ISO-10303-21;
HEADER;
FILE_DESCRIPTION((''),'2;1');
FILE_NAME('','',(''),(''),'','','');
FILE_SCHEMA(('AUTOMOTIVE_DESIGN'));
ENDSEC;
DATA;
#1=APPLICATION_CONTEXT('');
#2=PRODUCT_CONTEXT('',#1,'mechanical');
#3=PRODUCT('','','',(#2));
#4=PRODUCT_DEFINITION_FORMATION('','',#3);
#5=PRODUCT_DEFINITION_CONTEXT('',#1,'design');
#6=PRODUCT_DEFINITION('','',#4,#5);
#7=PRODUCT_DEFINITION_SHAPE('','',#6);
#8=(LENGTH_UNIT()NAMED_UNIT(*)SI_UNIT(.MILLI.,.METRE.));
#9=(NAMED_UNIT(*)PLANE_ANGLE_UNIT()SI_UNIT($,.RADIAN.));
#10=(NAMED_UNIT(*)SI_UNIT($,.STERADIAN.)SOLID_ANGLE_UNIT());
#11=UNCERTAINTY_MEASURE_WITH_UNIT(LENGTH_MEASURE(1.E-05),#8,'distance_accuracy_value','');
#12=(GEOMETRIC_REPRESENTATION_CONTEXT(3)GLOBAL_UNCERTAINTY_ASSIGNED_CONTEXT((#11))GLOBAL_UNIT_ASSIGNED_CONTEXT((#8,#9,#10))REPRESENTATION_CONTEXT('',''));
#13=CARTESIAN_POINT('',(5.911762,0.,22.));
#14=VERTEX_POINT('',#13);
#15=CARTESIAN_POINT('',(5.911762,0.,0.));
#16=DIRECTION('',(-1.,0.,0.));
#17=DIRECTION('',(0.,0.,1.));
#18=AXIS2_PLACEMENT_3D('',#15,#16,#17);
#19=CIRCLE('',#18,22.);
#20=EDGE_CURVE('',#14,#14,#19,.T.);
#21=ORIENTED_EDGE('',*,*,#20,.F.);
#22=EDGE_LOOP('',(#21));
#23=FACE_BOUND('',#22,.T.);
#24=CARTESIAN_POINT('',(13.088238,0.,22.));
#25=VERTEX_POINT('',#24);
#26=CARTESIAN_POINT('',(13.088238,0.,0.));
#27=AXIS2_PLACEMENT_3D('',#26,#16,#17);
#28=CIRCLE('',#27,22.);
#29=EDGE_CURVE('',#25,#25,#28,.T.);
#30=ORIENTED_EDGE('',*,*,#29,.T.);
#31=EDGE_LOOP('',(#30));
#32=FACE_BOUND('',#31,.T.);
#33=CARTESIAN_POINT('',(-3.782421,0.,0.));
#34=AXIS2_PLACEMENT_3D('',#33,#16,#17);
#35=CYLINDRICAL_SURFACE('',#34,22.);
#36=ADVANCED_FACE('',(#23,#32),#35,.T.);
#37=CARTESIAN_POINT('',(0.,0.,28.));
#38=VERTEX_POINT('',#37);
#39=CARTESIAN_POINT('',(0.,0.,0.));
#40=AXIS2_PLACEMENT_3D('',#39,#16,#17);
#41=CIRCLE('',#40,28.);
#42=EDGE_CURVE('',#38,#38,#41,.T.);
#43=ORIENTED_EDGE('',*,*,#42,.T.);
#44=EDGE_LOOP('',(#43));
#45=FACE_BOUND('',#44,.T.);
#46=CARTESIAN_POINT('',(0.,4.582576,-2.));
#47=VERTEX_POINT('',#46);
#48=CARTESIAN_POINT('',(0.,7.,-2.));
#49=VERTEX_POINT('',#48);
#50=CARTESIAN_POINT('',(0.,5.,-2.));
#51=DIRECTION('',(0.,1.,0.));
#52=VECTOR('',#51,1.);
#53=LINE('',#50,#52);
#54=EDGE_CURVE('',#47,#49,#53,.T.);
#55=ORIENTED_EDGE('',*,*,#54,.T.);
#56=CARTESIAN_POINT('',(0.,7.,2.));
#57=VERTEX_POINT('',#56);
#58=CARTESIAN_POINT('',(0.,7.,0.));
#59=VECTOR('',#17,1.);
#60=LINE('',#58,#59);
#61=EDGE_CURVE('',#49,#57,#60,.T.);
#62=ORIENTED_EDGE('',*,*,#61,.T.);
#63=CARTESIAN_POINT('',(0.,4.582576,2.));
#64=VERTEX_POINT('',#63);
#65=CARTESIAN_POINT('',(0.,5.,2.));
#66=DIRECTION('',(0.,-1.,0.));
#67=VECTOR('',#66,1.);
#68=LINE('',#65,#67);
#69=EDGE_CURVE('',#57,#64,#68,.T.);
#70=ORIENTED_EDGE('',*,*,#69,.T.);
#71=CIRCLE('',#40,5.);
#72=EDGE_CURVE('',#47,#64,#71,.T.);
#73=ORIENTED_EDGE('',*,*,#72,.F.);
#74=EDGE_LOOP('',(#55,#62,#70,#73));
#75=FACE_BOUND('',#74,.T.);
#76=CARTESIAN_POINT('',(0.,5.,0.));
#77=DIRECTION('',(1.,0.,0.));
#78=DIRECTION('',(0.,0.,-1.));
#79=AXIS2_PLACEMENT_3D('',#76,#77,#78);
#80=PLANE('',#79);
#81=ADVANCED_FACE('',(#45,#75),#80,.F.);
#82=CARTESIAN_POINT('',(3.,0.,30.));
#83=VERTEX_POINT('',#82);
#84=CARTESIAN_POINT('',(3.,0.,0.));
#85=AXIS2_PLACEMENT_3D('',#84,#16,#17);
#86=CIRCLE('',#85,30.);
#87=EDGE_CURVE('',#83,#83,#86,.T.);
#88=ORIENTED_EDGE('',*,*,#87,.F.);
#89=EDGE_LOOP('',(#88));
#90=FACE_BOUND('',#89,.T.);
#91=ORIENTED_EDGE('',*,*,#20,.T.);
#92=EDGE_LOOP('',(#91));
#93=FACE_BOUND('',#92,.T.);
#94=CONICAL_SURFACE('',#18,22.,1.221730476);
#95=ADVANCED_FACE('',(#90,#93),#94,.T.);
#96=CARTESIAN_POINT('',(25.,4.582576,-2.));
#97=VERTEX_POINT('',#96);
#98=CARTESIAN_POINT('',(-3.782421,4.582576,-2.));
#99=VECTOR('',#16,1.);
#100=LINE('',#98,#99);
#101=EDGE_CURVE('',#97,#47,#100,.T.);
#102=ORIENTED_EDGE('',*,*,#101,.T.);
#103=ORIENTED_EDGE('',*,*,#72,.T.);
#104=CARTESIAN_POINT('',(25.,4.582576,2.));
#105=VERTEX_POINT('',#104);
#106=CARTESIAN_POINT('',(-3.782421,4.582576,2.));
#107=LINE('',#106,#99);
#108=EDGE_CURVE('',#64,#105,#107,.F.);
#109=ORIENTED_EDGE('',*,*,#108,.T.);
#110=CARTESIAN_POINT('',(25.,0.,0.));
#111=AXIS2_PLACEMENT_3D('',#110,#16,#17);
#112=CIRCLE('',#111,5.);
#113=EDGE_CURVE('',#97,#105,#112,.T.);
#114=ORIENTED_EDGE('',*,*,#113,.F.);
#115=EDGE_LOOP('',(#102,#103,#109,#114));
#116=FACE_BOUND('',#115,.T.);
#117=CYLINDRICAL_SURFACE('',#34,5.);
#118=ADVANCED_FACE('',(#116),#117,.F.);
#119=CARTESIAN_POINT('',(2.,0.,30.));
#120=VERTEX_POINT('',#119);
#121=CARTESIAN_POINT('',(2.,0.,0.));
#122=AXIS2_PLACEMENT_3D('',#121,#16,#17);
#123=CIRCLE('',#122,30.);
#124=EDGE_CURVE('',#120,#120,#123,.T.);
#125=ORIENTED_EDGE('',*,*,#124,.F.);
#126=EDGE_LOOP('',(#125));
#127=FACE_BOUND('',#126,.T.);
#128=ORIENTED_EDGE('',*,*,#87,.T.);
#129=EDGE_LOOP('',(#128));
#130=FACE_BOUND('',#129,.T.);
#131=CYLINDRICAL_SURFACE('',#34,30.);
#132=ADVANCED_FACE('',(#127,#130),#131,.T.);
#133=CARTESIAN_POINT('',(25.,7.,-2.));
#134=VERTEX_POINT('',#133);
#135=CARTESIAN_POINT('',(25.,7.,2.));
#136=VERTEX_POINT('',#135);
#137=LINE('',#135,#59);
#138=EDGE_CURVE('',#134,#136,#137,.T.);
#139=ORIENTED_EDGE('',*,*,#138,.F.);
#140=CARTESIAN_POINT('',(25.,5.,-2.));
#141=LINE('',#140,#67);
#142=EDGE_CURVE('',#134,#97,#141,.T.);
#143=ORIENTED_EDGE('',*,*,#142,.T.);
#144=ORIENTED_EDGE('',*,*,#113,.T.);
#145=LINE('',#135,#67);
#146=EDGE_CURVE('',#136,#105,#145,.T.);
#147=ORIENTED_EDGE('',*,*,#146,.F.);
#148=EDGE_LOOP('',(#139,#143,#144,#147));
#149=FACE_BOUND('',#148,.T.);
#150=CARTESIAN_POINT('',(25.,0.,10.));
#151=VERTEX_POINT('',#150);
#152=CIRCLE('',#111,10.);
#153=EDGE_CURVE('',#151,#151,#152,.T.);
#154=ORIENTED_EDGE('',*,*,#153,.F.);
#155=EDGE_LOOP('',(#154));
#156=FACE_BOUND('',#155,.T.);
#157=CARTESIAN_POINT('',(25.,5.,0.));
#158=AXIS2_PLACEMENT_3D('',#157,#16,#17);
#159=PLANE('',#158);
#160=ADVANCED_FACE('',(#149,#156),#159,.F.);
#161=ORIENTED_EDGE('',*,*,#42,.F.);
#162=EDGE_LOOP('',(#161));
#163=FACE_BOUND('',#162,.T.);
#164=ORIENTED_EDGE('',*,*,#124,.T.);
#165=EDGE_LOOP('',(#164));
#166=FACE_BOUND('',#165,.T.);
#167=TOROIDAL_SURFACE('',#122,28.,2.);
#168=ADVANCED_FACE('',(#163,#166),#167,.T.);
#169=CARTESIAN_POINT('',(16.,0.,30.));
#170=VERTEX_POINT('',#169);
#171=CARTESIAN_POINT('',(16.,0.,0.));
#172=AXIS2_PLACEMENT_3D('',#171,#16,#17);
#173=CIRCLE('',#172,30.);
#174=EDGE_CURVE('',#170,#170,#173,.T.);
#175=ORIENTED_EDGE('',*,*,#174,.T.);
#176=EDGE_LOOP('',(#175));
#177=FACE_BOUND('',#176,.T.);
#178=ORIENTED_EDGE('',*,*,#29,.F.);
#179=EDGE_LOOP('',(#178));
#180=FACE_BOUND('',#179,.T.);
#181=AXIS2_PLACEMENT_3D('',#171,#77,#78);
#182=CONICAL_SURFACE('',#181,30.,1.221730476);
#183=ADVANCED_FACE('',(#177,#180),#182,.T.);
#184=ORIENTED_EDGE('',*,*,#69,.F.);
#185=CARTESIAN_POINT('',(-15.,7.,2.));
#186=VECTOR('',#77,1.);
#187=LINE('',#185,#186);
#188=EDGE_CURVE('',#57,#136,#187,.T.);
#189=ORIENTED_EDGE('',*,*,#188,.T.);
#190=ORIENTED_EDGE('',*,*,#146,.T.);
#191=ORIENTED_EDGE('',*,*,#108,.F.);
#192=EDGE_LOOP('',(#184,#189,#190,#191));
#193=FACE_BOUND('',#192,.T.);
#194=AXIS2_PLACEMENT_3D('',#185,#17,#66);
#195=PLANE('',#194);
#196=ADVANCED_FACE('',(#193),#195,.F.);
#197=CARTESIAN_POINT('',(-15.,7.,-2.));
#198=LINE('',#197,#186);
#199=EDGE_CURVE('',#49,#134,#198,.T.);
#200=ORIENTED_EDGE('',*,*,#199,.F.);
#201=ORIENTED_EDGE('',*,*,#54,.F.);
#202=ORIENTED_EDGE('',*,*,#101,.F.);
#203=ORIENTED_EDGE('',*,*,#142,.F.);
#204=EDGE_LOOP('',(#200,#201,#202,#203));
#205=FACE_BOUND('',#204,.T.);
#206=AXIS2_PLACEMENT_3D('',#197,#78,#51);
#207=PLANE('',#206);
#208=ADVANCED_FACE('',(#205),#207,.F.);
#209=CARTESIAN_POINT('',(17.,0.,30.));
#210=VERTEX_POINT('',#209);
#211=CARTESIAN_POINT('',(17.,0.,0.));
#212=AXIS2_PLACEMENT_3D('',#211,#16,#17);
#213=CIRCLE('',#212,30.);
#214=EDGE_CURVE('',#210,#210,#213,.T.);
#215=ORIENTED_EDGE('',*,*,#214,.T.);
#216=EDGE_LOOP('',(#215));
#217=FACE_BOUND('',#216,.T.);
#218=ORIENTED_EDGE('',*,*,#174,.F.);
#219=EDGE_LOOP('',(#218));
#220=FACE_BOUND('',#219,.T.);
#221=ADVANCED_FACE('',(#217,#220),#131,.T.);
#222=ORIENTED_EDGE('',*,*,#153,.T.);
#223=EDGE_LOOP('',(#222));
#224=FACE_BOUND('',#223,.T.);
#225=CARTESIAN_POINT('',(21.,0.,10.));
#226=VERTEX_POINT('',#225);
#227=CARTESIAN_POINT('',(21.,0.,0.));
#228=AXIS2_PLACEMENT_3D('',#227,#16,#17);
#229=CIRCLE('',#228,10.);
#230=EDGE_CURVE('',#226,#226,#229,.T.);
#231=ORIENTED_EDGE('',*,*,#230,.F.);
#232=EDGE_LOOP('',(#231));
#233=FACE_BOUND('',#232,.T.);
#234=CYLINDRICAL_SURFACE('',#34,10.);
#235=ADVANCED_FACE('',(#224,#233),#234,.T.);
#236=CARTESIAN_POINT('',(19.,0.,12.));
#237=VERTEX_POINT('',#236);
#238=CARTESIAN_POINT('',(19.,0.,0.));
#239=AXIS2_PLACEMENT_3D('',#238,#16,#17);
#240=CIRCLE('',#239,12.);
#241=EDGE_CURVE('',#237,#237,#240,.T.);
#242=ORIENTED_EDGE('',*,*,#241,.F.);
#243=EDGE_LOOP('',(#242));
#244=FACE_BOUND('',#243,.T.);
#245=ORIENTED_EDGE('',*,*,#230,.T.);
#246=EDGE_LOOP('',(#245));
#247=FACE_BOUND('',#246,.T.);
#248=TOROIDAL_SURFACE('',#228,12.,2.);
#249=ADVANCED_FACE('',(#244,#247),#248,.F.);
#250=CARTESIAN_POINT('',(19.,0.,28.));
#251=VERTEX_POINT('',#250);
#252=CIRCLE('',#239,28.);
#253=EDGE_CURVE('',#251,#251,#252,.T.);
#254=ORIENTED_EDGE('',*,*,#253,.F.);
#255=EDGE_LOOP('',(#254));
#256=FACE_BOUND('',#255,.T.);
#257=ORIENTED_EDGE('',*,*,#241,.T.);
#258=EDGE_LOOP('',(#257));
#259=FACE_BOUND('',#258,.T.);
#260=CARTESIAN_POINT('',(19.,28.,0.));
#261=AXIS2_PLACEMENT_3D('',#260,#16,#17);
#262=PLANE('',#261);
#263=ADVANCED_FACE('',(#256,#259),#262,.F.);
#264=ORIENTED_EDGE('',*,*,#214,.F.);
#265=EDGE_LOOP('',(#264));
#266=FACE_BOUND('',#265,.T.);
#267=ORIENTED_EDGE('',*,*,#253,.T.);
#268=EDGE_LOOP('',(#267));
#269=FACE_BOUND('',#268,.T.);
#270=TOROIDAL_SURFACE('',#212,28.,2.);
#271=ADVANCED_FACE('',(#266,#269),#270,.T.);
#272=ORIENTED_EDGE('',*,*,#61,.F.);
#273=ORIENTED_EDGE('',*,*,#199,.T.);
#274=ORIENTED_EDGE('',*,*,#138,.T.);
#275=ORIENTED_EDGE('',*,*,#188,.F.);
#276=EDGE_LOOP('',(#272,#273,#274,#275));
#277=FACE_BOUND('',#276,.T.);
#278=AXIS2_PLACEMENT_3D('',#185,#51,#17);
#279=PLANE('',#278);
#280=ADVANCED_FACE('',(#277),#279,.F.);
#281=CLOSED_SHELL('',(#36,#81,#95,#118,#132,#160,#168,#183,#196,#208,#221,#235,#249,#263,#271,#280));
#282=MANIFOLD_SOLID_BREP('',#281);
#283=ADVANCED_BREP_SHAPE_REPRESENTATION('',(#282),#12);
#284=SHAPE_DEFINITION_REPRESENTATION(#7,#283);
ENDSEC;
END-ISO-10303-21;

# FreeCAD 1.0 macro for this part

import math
import FreeCAD as App
import Part
import Sketcher
from FreeCAD import Vector
Q = App.Units.Quantity


def add_polygon(sketch, points):
    """Adds a closed chain of lines whose ends are joined by coincident constraints."""
    first, n = sketch.GeometryCount, len(points)
    for a, b in zip(points, points[1:] + points[:1]):
        sketch.addGeometry(Part.LineSegment(App.Vector(*a, 0), App.Vector(*b, 0)), False)
    for i in range(n):
        sketch.addConstraint(Sketcher.Constraint("Coincident", first + i, 2, first + (i + 1) % n, 1))

doc = App.newDocument("Part")
body = doc.addObject("PartDesign::Body", "Body")

# Sketch on XY plane
sketch1 = body.newObject("Sketcher::SketchObject", "Sketch")
sketch1.AttachmentSupport = (doc.getObject("XY_Plane"), [""])
sketch1.MapMode = "FlatFace"
sketch1.addGeometry(Part.LineSegment(Vector(17, 30, 0), Vector(16, 30, 0)), False)
sketch1.addGeometry(Part.LineSegment(Vector(16, 30, 0), Vector(13.1, 22, 0)), False)
sketch1.addGeometry(Part.LineSegment(Vector(13.1, 22, 0), Vector(5.9, 22, 0)), False)
sketch1.addGeometry(Part.LineSegment(Vector(5.9, 22, 0), Vector(3, 30, 0)), False)
sketch1.addGeometry(Part.LineSegment(Vector(3, 30, 0), Vector(2, 30, 0)), False)
sketch1.addGeometry(Part.ArcOfCircle(Part.Circle(Vector(2, 28, 0), Vector(0, 0, 1), 2), math.radians(90), math.radians(180)), False)
sketch1.addGeometry(Part.LineSegment(Vector(0, 28, 0), Vector(0, 5, 0)), False)
sketch1.addGeometry(Part.LineSegment(Vector(0, 5, 0), Vector(25, 5, 0)), False)
sketch1.addGeometry(Part.LineSegment(Vector(25, 5, 0), Vector(25, 10, 0)), False)
sketch1.addGeometry(Part.LineSegment(Vector(25, 10, 0), Vector(21, 10, 0)), False)
sketch1.addGeometry(Part.ArcOfCircle(Part.Circle(Vector(21, 12, 0), Vector(0, 0, 1), 2), math.radians(-180), math.radians(-90)), False)
sketch1.addGeometry(Part.LineSegment(Vector(19, 12, 0), Vector(19, 28, 0)), False)
sketch1.addGeometry(Part.ArcOfCircle(Part.Circle(Vector(17, 28, 0), Vector(0, 0, 1), 2), math.radians(0), math.radians(90)), False)
sketch1.addConstraint(Sketcher.Constraint("Coincident", 0, 2, 1, 1))
sketch1.addConstraint(Sketcher.Constraint("Coincident", 1, 2, 2, 1))
sketch1.addConstraint(Sketcher.Constraint("Coincident", 2, 2, 3, 1))
sketch1.addConstraint(Sketcher.Constraint("Coincident", 3, 2, 4, 1))
sketch1.addConstraint(Sketcher.Constraint("Tangent", 4, 2, 5, 1))
sketch1.addConstraint(Sketcher.Constraint("Tangent", 5, 2, 6, 1))
sketch1.addConstraint(Sketcher.Constraint("Coincident", 6, 2, 7, 1))
sketch1.addConstraint(Sketcher.Constraint("Coincident", 7, 2, 8, 1))
sketch1.addConstraint(Sketcher.Constraint("Coincident", 8, 2, 9, 1))
sketch1.addConstraint(Sketcher.Constraint("Tangent", 9, 2, 10, 2))
sketch1.addConstraint(Sketcher.Constraint("Tangent", 10, 1, 11, 1))
sketch1.addConstraint(Sketcher.Constraint("Tangent", 11, 2, 12, 1))
sketch1.addConstraint(Sketcher.Constraint("Tangent", 12, 2, 0, 1))
sketch1.addConstraint(Sketcher.Constraint("Horizontal", 0))
sketch1.addConstraint(Sketcher.Constraint("Horizontal", 2))
sketch1.addConstraint(Sketcher.Constraint("Horizontal", 4))
sketch1.addConstraint(Sketcher.Constraint("Vertical", 6))
sketch1.addConstraint(Sketcher.Constraint("Horizontal", 7))
sketch1.addConstraint(Sketcher.Constraint("Vertical", 8))
sketch1.addConstraint(Sketcher.Constraint("Horizontal", 9))
sketch1.addConstraint(Sketcher.Constraint("Vertical", 11))
sketch1.addConstraint(Sketcher.Constraint("Equal", 5, 10))
sketch1.addConstraint(Sketcher.Constraint("Equal", 10, 12))
sketch1.addConstraint(Sketcher.Constraint("PointOnObject", 5, 2, -2))
sketch1.addConstraint(Sketcher.Constraint("Horizontal", 5, 3, 12, 3))
sketch1.addConstraint(Sketcher.Constraint("Equal", 0, 4))
sketch1.addConstraint(Sketcher.Constraint("Equal", 1, 3))
sketch1.addConstraint(Sketcher.Constraint("Radius", 5, Q("2 mm")))
sketch1.addConstraint(Sketcher.Constraint("DistanceX", 0, 2, 0, 1, Q("1 mm")))
sketch1.addConstraint(Sketcher.Constraint("DistanceX", 7, 1, 7, 2, Q("25 mm")))
sketch1.addConstraint(Sketcher.Constraint("DistanceX", 9, 2, 9, 1, Q("4 mm")))
sketch1.addConstraint(Sketcher.Constraint("DistanceY", 6, 2, 6, 1, Q("23 mm")))
sketch1.addConstraint(Sketcher.Constraint("DistanceY", 8, 1, 8, 2, Q("5 mm")))
sketch1.addConstraint(Sketcher.Constraint("Angle", 1, Q("-110 deg")))
sketch1.addConstraint(Sketcher.Constraint("DistanceY", -1, 1, 5, 3, Q("28 mm")))
sketch1.addConstraint(Sketcher.Constraint("DistanceY", -1, 1, 1, 2, Q("22 mm")))
revolution = body.newObject("PartDesign::Revolution", "Revolution")
revolution.Profile = sketch1
revolution.ReferenceAxis = (sketch1, ["H_Axis"])
revolution.Angle = 360

# Sketch on YZ plane
sketch2 = body.newObject("Sketcher::SketchObject", "Sketch001")
sketch2.AttachmentSupport = (doc.getObject("YZ_Plane"), [""])
sketch2.MapMode = "FlatFace"
sketch2.AttachmentOffset = App.Placement(Vector(0, 0, 25), App.Rotation())
add_polygon(sketch2, [(7, 2), (0, 2), (0, -2), (7, -2)])  # lines 0-3
sketch2.addConstraint(Sketcher.Constraint("Horizontal", 0))
sketch2.addConstraint(Sketcher.Constraint("Vertical", 1))
sketch2.addConstraint(Sketcher.Constraint("Horizontal", 2))
sketch2.addConstraint(Sketcher.Constraint("Vertical", 3))
sketch2.addConstraint(Sketcher.Constraint("Symmetric", 0, 2, 1, 2, -1, 1))
sketch2.addConstraint(Sketcher.Constraint("DistanceX", 0, 2, 0, 1, Q("7 mm")))
sketch2.addConstraint(Sketcher.Constraint("DistanceY", 1, 2, 1, 1, Q("4 mm")))
pocket1 = body.newObject("PartDesign::Pocket", "Pocket")
pocket1.Profile = sketch2
pocket1.Length = 40

doc.recompute()
